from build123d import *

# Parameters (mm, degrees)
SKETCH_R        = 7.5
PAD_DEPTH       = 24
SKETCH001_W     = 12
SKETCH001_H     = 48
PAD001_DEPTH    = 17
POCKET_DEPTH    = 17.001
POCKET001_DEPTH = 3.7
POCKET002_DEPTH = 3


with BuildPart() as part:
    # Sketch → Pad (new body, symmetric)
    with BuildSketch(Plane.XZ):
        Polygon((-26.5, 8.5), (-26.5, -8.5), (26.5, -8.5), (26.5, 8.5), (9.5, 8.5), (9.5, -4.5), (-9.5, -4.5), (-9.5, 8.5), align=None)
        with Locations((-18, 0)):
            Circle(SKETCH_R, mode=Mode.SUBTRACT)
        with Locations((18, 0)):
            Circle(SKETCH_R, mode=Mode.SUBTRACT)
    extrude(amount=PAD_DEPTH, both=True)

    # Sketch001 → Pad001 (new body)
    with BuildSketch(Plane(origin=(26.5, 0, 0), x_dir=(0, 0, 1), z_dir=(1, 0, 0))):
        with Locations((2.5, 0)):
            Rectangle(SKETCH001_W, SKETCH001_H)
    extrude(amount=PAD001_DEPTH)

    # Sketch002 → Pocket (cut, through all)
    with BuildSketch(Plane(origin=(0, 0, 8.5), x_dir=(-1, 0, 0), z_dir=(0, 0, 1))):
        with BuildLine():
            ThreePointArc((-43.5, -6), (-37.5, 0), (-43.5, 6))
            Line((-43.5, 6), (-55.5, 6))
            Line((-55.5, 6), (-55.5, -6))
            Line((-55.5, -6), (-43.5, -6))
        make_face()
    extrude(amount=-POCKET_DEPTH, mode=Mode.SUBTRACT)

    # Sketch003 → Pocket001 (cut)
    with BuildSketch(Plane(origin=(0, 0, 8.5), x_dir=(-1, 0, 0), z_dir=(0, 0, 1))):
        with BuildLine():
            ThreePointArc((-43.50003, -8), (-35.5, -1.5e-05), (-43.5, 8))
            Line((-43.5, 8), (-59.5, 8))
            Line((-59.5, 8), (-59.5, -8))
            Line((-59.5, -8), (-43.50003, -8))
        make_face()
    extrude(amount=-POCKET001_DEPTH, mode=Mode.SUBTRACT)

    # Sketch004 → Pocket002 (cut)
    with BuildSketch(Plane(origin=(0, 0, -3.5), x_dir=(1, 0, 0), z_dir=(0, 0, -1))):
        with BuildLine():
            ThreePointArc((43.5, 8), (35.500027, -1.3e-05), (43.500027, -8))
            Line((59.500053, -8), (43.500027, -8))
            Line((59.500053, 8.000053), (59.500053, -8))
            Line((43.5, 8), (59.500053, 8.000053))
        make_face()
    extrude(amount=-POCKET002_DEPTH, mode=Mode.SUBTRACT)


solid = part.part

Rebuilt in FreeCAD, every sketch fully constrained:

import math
import FreeCAD as App
import Part
import Sketcher
from FreeCAD import Vector


def add_polygon(sketch, points):
    """Adds a closed chain of lines whose ends are joined by coincident constraints."""
    first, n = sketch.GeometryCount, len(points)
    for a, b in zip(points, points[1:] + points[:1]):
        sketch.addGeometry(Part.LineSegment(App.Vector(*a, 0), App.Vector(*b, 0)), False)
    for i in range(n):
        sketch.addConstraint(Sketcher.Constraint("Coincident", first + i, 2, first + (i + 1) % n, 1))

doc = App.newDocument("Part")
body = doc.addObject("PartDesign::Body", "Body")

sketch1 = body.newObject("Sketcher::SketchObject", "Sketch")
sketch1.AttachmentSupport = (doc.getObject("XZ_Plane"), [""])
sketch1.MapMode = "FlatFace"
add_polygon(sketch1, [(-26.5, 8.5), (-26.5, -8.5), (26.5, -8.5), (26.5, 8.5), (9.5, 8.5), (9.5, -4.5), (-9.5, -4.5), (-9.5, 8.5)])
sketch1.addGeometry(Part.Circle(Vector(-18, 0, 0), Vector(0, 0, 1), 7.5), False)
sketch1.addGeometry(Part.Circle(Vector(18, 0, 0), Vector(0, 0, 1), 7.5), False)
sketch1.addConstraint([
    Sketcher.Constraint("Vertical", 0),
    Sketcher.Constraint("Horizontal", 1),
    Sketcher.Constraint("Vertical", 2),
    Sketcher.Constraint("Horizontal", 3),
    Sketcher.Constraint("Vertical", 4),
    Sketcher.Constraint("Horizontal", 5),
    Sketcher.Constraint("Vertical", 6),
    Sketcher.Constraint("Horizontal", 7),
    Sketcher.Constraint("Equal", 8, 9),
    Sketcher.Constraint("Symmetric", 8, 3, 9, 3, -1, 1),
    Sketcher.Constraint("Symmetric", 0, 2, 2, 2, -1, 1),
    Sketcher.Constraint("Symmetric", 3, 2, 6, 2, -2),
    Sketcher.Constraint("PointOnObject", 8, 3, -1),
    Sketcher.Constraint("Equal", 7, 0),
    Sketcher.Constraint("Diameter", 8, 15.0),
    Sketcher.Constraint("DistanceX", 1, 1, 1, 2, 53.0),
    Sketcher.Constraint("DistanceX", 3, 2, 3, 1, 17.0),
    Sketcher.Constraint("DistanceY", 4, 2, 4, 1, 13.0),
    Sketcher.Constraint("DistanceX", 8, 3, -1, 1, 18.0),
])
pad1 = body.newObject("PartDesign::Pad", "Pad")
pad1.Profile = sketch1
pad1.Length = 48
pad1.Midplane = True

sketch2 = body.newObject("Sketcher::SketchObject", "Sketch001")
sketch2.AttachmentSupport = (doc.getObject("YZ_Plane"), [""])
sketch2.MapMode = "FlatFace"
sketch2.AttachmentOffset = App.Placement(Vector(0, 0, 26.5), App.Rotation())
add_polygon(sketch2, [(-24, -3.5), (24, -3.5), (24, 8.5), (-24, 8.5)])
sketch2.addConstraint([
    Sketcher.Constraint("Horizontal", 0),
    Sketcher.Constraint("Vertical", 1),
    Sketcher.Constraint("Horizontal", 2),
    Sketcher.Constraint("Vertical", 3),
    Sketcher.Constraint("DistanceX", 0, 1, 0, 2, 48.0),
    Sketcher.Constraint("DistanceY", 1, 1, 1, 2, 12.0),
    Sketcher.Constraint("DistanceX", -1, 1, 0, 2, 24.0),
    Sketcher.Constraint("DistanceY", 0, 2, -1, 1, 3.5),
])
pad2 = body.newObject("PartDesign::Pad", "Pad001")
pad2.Profile = sketch2
pad2.Length = 17

sketch3 = body.newObject("Sketcher::SketchObject", "Sketch002")
sketch3.AttachmentSupport = (doc.getObject("XY_Plane"), [""])
sketch3.MapMode = "FlatFace"
sketch3.AttachmentOffset = App.Placement(Vector(0, 0, 8.5), App.Rotation())
sketch3.addGeometry([
    Part.ArcOfCircle(Part.Circle(Vector(43.5, 0, 0), Vector(0, 0, 1), 6), math.radians(90), math.radians(270)),
    Part.LineSegment(Vector(43.5, -6, 0), Vector(55.5, -6, 0)),
    Part.LineSegment(Vector(55.5, -6, 0), Vector(55.5, 6, 0)),
    Part.LineSegment(Vector(55.5, 6, 0), Vector(43.5, 6, 0)),
], False)
sketch3.addConstraint([
    Sketcher.Constraint("Tangent", 0, 2, 1, 1),
    Sketcher.Constraint("Coincident", 1, 2, 2, 1),
    Sketcher.Constraint("Coincident", 2, 2, 3, 1),
    Sketcher.Constraint("Tangent", 3, 2, 0, 1),
    Sketcher.Constraint("Horizontal", 1),
    Sketcher.Constraint("Vertical", 2),
    Sketcher.Constraint("Horizontal", 3),
    Sketcher.Constraint("PointOnObject", 0, 3, -1),
    Sketcher.Constraint("Equal", 3, 2),
    Sketcher.Constraint("Radius", 0, 6.0),
    Sketcher.Constraint("DistanceX", -1, 1, 0, 3, 43.5),
])
pocket1 = body.newObject("PartDesign::Pocket", "Pocket")
pocket1.Profile = sketch3
pocket1.Type = "ThroughAll"

sketch4 = body.newObject("Sketcher::SketchObject", "Sketch003")
sketch4.AttachmentSupport = (doc.getObject("XY_Plane"), [""])
sketch4.MapMode = "FlatFace"
sketch4.AttachmentOffset = App.Placement(Vector(0, 0, 8.5), App.Rotation())
sketch4.addGeometry([
    Part.ArcOfCircle(Part.Circle(Vector(43.5, 0, 0), Vector(0, 0, 1), 8), math.radians(89.999785), math.radians(270)),
    Part.LineSegment(Vector(43.5, -8, 0), Vector(59.5, -8, 0)),
    Part.LineSegment(Vector(59.5, -8, 0), Vector(59.5, 8, 0)),
    Part.LineSegment(Vector(59.5, 8, 0), Vector(43.50003, 8, 0)),
], False)
sketch4.addConstraint([
    Sketcher.Constraint("Tangent", 0, 2, 1, 1),
    Sketcher.Constraint("Coincident", 1, 2, 2, 1),
    Sketcher.Constraint("Coincident", 2, 2, 3, 1),
    Sketcher.Constraint("Coincident", 3, 2, 0, 1),
    Sketcher.Constraint("Horizontal", 1),
    Sketcher.Constraint("Vertical", 2),
    Sketcher.Constraint("Horizontal", 3),
    Sketcher.Constraint("PointOnObject", 0, 3, -1),
    Sketcher.Constraint("Equal", 1, 2),
    Sketcher.Constraint("Radius", 0, 8.0),
    Sketcher.Constraint("DistanceX", -1, 1, 0, 3, 43.5),
    Sketcher.Constraint("DistanceX", 3, 2, 3, 1, 15.99997),
])
pocket2 = body.newObject("PartDesign::Pocket", "Pocket001")
pocket2.Profile = sketch4
pocket2.Length = 3.7

sketch5 = body.newObject("Sketcher::SketchObject", "Sketch004")
sketch5.AttachmentSupport = (doc.getObject("XY_Plane"), [""])
sketch5.MapMode = "FlatFace"
sketch5.AttachmentOffset = App.Placement(Vector(0, 0, -3.5), App.Rotation())
sketch5.addGeometry([
    Part.ArcOfCircle(Part.Circle(Vector(43.500027, 0, 0), Vector(0, 0, 1), 8), math.radians(90), math.radians(269.999807)),
    Part.LineSegment(Vector(43.500027, 8, 0), Vector(59.500053, 8, 0)),
    Part.LineSegment(Vector(59.500053, 8, 0), Vector(59.500053, -8.000053, 0)),
    Part.LineSegment(Vector(59.500053, -8.000053, 0), Vector(43.5, -8, 0)),
], False)
sketch5.addConstraint([
    Sketcher.Constraint("Tangent", 0, 1, 1, 1),
    Sketcher.Constraint("Coincident", 1, 2, 2, 1),
    Sketcher.Constraint("Coincident", 2, 2, 3, 1),
    Sketcher.Constraint("Tangent", 3, 2, 0, 2),
    Sketcher.Constraint("Horizontal", 1),
    Sketcher.Constraint("Vertical", 2),
    Sketcher.Constraint("PointOnObject", 0, 3, -1),
    Sketcher.Constraint("Radius", 0, 8.0),
    Sketcher.Constraint("DistanceX", -1, 1, 3, 2, 43.5),
    Sketcher.Constraint("DistanceX", 1, 1, 1, 2, 16.000026),
    Sketcher.Constraint("DistanceY", 2, 2, 2, 1, 16.000053),
])
pocket3 = body.newObject("PartDesign::Pocket", "Pocket002")
pocket3.Profile = sketch5
pocket3.Length = 3
pocket3.Reversed = True

doc.recompute()
